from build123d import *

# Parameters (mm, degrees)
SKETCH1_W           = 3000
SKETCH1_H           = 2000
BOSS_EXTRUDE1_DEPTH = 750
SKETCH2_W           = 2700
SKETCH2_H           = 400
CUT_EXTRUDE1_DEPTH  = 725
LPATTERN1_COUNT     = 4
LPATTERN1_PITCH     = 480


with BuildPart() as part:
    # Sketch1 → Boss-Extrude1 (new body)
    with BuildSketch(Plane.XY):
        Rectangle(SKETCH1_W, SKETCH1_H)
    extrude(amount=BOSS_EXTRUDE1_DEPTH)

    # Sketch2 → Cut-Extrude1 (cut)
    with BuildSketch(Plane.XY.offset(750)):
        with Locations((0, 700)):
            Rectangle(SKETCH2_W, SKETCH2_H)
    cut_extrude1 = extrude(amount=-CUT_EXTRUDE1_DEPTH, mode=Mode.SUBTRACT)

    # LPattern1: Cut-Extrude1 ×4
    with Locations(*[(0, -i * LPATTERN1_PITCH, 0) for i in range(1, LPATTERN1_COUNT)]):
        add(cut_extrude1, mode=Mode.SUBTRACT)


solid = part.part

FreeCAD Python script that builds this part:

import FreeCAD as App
import Part
import Sketcher
Q = App.Units.Quantity

doc = App.newDocument("Part")
body = doc.addObject("PartDesign::Body", "Body")

# Sketch on XY plane
sketch1 = body.newObject("Sketcher::SketchObject", "Sketch")
sketch1.AttachmentSupport = (doc.getObject("XY_Plane"), [""])
sketch1.MapMode = "FlatFace"
sketch1.addGeometry([
    Part.LineSegment(App.Vector(-1500, 1000, 0), App.Vector(-1500, -1000, 0)),
    Part.LineSegment(App.Vector(-1500, -1000, 0), App.Vector(1500, -1000, 0)),
    Part.LineSegment(App.Vector(1500, -1000, 0), App.Vector(1500, 1000, 0)),
    Part.LineSegment(App.Vector(1500, 1000, 0), App.Vector(-1500, 1000, 0)),
], False)
sketch1.addConstraint([
    Sketcher.Constraint("Coincident", 0, 2, 1, 1),
    Sketcher.Constraint("Coincident", 1, 2, 2, 1),
    Sketcher.Constraint("Coincident", 2, 2, 3, 1),
    Sketcher.Constraint("Coincident", 3, 2, 0, 1),
    Sketcher.Constraint("Vertical", 0),
    Sketcher.Constraint("Horizontal", 1),
    Sketcher.Constraint("Vertical", 2),
    Sketcher.Constraint("Horizontal", 3),
    Sketcher.Constraint("Symmetric", 0, 2, 2, 2, -1, 1),
    Sketcher.Constraint("DistanceX", 1, 1, 1, 2, Q("3000 mm")),
    Sketcher.Constraint("DistanceY", 0, 2, 0, 1, Q("2000 mm")),
])
pad1 = body.newObject("PartDesign::Pad", "Pad")
pad1.Profile = sketch1
pad1.Length = 750

# Sketch on XY plane
sketch2 = body.newObject("Sketcher::SketchObject", "Sketch001")
sketch2.AttachmentSupport = (doc.getObject("XY_Plane"), [""])
sketch2.MapMode = "FlatFace"
sketch2.AttachmentOffset = App.Placement(App.Vector(0, 0, 750), App.Rotation())
sketch2.addGeometry([
    Part.LineSegment(App.Vector(-1350, 900, 0), App.Vector(-1350, 500, 0)),
    Part.LineSegment(App.Vector(-1350, 500, 0), App.Vector(1350, 500, 0)),
    Part.LineSegment(App.Vector(1350, 500, 0), App.Vector(1350, 900, 0)),
    Part.LineSegment(App.Vector(1350, 900, 0), App.Vector(-1350, 900, 0)),
], False)
sketch2.addConstraint([
    Sketcher.Constraint("Coincident", 0, 2, 1, 1),
    Sketcher.Constraint("Coincident", 1, 2, 2, 1),
    Sketcher.Constraint("Coincident", 2, 2, 3, 1),
    Sketcher.Constraint("Coincident", 3, 2, 0, 1),
    Sketcher.Constraint("Vertical", 0),
    Sketcher.Constraint("Horizontal", 1),
    Sketcher.Constraint("Vertical", 2),
    Sketcher.Constraint("Horizontal", 3),
    Sketcher.Constraint("DistanceX", 1, 1, 1, 2, Q("2700 mm")),
    Sketcher.Constraint("DistanceY", 0, 2, 0, 1, Q("400 mm")),
    Sketcher.Constraint("DistanceX", 0, 2, -1, 1, Q("1350 mm")),
    Sketcher.Constraint("DistanceY", -1, 1, 0, 2, Q("500 mm")),
])
pocket1 = body.newObject("PartDesign::Pocket", "Pocket")
pocket1.Profile = sketch2
pocket1.Length = 725
doc.recompute()

linearpattern = body.newObject("PartDesign::LinearPattern", "LinearPattern")
linearpattern.Originals = [pocket1]
linearpattern.Direction = (doc.getObject("Y_Axis"), [""])
linearpattern.Mode = "offset"
linearpattern.Offset = 480
linearpattern.Occurrences = 4
linearpattern.Reversed = True
body.Tip = linearpattern

doc.recompute()
